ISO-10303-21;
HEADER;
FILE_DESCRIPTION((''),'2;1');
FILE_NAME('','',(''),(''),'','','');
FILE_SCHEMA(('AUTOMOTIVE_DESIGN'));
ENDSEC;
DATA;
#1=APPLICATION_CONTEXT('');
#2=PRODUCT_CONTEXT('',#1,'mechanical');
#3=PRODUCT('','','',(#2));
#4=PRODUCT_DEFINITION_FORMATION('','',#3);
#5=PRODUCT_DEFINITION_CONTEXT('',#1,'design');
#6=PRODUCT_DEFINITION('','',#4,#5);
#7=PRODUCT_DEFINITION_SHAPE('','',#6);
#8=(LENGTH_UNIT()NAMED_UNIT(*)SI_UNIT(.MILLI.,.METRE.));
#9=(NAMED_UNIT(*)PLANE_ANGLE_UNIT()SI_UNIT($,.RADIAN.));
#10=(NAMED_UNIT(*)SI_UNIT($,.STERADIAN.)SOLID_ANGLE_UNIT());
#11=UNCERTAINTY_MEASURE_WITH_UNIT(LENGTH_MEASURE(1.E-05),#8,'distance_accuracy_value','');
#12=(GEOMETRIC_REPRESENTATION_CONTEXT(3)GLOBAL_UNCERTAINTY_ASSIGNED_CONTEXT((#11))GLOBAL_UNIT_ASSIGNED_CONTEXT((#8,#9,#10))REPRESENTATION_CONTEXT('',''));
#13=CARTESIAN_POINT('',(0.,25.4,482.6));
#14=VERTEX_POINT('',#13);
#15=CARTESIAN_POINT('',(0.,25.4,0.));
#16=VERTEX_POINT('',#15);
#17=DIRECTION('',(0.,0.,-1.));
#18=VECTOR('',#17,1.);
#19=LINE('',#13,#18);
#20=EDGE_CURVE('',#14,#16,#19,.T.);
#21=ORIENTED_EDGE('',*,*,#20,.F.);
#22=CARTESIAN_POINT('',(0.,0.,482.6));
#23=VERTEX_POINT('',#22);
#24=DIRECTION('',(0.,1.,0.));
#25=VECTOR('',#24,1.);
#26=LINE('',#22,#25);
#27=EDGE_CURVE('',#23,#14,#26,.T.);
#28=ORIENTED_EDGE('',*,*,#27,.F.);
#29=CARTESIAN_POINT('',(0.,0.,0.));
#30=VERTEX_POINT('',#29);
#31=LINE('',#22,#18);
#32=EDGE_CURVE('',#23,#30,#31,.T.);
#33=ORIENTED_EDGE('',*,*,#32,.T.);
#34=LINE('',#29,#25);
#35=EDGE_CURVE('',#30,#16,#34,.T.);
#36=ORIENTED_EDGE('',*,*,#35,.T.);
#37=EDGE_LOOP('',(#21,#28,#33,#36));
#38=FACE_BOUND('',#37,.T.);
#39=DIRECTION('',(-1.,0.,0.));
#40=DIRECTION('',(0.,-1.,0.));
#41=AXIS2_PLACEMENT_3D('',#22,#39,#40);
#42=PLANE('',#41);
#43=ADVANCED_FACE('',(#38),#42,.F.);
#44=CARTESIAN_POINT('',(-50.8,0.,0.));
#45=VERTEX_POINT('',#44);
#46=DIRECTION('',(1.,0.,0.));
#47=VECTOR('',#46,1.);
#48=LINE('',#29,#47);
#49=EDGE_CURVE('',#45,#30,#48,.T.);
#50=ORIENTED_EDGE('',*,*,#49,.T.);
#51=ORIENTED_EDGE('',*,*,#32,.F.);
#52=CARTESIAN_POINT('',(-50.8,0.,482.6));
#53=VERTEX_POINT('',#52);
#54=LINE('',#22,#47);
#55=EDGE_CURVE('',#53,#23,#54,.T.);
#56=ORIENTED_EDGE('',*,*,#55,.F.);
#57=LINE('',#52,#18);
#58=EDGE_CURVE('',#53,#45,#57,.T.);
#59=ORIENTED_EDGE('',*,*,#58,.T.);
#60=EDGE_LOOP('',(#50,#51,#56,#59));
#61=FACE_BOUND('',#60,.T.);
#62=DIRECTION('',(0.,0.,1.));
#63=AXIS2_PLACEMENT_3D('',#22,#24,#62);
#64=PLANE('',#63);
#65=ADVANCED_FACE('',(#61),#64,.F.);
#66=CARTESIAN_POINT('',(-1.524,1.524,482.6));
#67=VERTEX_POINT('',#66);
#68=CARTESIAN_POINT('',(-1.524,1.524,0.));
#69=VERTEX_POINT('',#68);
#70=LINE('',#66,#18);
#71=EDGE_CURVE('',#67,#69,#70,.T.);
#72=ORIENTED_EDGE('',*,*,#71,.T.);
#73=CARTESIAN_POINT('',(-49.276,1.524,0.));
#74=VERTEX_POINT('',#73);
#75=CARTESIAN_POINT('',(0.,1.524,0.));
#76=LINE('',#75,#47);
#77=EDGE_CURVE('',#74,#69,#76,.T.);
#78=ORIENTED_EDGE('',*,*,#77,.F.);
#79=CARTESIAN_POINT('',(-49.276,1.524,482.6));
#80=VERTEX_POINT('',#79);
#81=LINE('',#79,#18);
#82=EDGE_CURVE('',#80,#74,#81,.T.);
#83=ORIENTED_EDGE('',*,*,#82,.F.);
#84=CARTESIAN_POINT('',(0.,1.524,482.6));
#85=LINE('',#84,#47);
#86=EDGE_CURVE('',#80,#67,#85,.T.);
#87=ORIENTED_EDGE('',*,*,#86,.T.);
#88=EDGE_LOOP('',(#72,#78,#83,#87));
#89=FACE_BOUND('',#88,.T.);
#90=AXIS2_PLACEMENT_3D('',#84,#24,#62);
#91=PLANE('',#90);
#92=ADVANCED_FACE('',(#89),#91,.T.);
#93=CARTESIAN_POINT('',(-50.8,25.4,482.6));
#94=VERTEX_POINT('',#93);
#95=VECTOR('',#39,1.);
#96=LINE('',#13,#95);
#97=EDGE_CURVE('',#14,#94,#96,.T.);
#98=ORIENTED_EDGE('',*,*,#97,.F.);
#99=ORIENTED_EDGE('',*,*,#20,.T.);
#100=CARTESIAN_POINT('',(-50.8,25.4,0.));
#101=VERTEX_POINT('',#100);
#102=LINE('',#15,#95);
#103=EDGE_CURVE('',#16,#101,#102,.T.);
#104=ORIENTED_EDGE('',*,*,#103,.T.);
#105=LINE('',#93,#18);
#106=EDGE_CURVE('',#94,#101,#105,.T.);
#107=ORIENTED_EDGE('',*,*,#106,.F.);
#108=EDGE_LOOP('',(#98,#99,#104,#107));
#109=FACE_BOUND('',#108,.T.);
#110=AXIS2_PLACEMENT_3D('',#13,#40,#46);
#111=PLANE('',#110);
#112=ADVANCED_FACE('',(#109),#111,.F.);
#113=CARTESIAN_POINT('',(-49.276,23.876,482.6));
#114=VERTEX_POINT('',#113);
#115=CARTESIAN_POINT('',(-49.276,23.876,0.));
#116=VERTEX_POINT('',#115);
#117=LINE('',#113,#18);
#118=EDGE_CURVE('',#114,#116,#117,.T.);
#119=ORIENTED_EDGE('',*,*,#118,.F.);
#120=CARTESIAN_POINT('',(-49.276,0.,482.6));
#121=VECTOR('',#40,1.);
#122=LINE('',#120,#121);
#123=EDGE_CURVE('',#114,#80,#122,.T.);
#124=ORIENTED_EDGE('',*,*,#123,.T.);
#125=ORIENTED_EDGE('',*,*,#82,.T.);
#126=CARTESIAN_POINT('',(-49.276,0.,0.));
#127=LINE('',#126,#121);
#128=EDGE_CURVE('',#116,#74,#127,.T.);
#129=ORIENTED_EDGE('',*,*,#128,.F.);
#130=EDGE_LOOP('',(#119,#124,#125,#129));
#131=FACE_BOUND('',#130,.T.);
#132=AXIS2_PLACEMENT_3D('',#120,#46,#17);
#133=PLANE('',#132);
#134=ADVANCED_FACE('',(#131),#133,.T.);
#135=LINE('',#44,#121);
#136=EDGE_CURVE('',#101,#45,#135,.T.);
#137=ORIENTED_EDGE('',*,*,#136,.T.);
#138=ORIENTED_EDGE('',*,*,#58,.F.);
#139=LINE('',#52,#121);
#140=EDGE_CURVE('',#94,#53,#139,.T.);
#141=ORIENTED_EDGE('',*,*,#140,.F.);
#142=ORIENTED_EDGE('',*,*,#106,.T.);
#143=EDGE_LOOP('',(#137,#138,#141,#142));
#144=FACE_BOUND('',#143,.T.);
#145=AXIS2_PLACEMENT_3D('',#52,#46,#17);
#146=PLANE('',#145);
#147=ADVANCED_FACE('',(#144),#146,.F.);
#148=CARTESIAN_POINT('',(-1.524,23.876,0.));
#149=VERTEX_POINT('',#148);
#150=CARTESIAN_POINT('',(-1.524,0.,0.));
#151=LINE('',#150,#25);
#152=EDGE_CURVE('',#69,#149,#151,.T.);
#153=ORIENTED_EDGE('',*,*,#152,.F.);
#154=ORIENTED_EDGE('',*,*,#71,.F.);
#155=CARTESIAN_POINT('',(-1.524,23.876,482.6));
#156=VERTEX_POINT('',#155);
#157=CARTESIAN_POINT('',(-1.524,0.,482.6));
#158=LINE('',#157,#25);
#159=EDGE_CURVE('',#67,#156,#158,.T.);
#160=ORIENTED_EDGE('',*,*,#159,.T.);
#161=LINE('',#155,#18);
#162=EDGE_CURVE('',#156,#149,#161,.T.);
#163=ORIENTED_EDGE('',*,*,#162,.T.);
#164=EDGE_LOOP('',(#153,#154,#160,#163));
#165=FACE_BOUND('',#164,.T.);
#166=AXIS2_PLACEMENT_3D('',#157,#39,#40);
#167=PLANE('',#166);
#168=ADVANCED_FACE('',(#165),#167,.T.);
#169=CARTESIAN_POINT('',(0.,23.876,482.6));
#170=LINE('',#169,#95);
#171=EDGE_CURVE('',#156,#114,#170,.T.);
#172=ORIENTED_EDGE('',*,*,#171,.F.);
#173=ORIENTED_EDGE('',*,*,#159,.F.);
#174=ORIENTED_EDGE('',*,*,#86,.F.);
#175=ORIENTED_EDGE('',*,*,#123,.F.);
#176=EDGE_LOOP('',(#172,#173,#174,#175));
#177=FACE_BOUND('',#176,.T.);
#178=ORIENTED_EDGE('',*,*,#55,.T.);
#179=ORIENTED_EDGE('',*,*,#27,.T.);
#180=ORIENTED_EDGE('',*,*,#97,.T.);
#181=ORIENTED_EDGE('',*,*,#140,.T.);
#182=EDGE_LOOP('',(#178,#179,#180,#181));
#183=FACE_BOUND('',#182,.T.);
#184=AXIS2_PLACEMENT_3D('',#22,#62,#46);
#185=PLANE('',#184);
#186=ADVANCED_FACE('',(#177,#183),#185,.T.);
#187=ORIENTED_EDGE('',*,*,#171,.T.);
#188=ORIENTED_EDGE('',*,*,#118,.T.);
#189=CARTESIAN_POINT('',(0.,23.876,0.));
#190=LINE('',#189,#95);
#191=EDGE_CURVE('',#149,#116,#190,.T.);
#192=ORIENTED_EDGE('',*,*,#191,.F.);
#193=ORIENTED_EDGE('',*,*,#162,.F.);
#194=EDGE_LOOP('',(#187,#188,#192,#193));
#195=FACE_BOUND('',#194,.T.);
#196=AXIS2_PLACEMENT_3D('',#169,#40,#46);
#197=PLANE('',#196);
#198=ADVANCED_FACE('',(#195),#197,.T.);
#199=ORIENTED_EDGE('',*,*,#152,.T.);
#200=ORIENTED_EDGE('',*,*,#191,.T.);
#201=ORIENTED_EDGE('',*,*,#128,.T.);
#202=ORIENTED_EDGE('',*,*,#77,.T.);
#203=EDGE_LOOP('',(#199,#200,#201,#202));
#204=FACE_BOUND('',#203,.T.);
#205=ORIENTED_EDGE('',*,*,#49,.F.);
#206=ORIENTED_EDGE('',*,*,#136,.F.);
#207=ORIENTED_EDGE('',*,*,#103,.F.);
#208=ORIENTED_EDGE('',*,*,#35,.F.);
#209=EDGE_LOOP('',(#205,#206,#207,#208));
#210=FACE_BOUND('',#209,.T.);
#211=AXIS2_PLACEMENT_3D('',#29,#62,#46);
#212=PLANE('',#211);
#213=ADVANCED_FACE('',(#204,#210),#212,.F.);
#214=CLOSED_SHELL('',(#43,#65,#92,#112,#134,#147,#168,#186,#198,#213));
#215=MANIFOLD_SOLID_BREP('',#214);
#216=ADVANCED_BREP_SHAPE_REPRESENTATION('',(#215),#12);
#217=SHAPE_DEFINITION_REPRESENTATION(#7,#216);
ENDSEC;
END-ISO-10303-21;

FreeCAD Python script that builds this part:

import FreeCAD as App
import Part
import Sketcher
from FreeCAD import Vector
Q = App.Units.Quantity

doc = App.newDocument("Part")
body = doc.addObject("PartDesign::Body", "Body")

# Sketch on XY plane
sketch1 = doc.addObject("Sketcher::SketchObject", "Sketch")
body.addObject(sketch1)
sketch1.AttachmentSupport = (doc.XY_Plane, [""])
sketch1.MapMode = "FlatFace"
sketch1.addGeometry([
    Part.LineSegment(Vector(-51, 25, 0), Vector(-51, 0, 0)),  # 0
    Part.LineSegment(Vector(-51, 0, 0), Vector(0, 0, 0)),  # 1
    Part.LineSegment(Vector(0, 0, 0), Vector(0, 25, 0)),  # 2
    Part.LineSegment(Vector(0, 25, 0), Vector(-51, 25, 0)),  # 3
    Part.LineSegment(Vector(-2, 2, 0), Vector(-49, 2, 0)),  # 4
    Part.LineSegment(Vector(-49, 2, 0), Vector(-49, 24, 0)),  # 5
    Part.LineSegment(Vector(-49, 24, 0), Vector(-2, 24, 0)),  # 6
    Part.LineSegment(Vector(-2, 24, 0), Vector(-2, 2, 0)),  # 7
], False)
sketch1.addConstraint([
    Sketcher.Constraint("Coincident", 0, 2, 1, 1),
    Sketcher.Constraint("Coincident", 1, 2, 2, 1),
    Sketcher.Constraint("Coincident", 2, 2, 3, 1),
    Sketcher.Constraint("Coincident", 3, 2, 0, 1),
    Sketcher.Constraint("Coincident", 4, 2, 5, 1),
    Sketcher.Constraint("Coincident", 5, 2, 6, 1),
    Sketcher.Constraint("Coincident", 6, 2, 7, 1),
    Sketcher.Constraint("Coincident", 7, 2, 4, 1),
    Sketcher.Constraint("Vertical", 0),
    Sketcher.Constraint("Horizontal", 1),
    Sketcher.Constraint("Vertical", 2),
    Sketcher.Constraint("Horizontal", 3),
    Sketcher.Constraint("Horizontal", 4),
    Sketcher.Constraint("Vertical", 5),
    Sketcher.Constraint("Horizontal", 6),
    Sketcher.Constraint("Vertical", 7),
    Sketcher.Constraint("Coincident", 1, 2, -1, 1),
    Sketcher.Constraint("DistanceX", 1, 1, 1, 2, Q("2 in")),
    Sketcher.Constraint("DistanceY", 0, 2, 0, 1, Q("1 in")),
    Sketcher.Constraint("DistanceX", 4, 2, 4, 1, Q("1.88 in")),
    Sketcher.Constraint("DistanceY", 5, 1, 5, 2, Q("0.88 in")),
    Sketcher.Constraint("DistanceX", 4, 2, -1, 1, Q("1.94 in")),
    Sketcher.Constraint("DistanceY", -1, 1, 4, 2, Q("0.06 in")),
])
pad1 = doc.addObject("PartDesign::Pad", "Pad")
body.addObject(pad1)
pad1.Profile = sketch1
pad1.Length = Q("19 in")

doc.recompute()
